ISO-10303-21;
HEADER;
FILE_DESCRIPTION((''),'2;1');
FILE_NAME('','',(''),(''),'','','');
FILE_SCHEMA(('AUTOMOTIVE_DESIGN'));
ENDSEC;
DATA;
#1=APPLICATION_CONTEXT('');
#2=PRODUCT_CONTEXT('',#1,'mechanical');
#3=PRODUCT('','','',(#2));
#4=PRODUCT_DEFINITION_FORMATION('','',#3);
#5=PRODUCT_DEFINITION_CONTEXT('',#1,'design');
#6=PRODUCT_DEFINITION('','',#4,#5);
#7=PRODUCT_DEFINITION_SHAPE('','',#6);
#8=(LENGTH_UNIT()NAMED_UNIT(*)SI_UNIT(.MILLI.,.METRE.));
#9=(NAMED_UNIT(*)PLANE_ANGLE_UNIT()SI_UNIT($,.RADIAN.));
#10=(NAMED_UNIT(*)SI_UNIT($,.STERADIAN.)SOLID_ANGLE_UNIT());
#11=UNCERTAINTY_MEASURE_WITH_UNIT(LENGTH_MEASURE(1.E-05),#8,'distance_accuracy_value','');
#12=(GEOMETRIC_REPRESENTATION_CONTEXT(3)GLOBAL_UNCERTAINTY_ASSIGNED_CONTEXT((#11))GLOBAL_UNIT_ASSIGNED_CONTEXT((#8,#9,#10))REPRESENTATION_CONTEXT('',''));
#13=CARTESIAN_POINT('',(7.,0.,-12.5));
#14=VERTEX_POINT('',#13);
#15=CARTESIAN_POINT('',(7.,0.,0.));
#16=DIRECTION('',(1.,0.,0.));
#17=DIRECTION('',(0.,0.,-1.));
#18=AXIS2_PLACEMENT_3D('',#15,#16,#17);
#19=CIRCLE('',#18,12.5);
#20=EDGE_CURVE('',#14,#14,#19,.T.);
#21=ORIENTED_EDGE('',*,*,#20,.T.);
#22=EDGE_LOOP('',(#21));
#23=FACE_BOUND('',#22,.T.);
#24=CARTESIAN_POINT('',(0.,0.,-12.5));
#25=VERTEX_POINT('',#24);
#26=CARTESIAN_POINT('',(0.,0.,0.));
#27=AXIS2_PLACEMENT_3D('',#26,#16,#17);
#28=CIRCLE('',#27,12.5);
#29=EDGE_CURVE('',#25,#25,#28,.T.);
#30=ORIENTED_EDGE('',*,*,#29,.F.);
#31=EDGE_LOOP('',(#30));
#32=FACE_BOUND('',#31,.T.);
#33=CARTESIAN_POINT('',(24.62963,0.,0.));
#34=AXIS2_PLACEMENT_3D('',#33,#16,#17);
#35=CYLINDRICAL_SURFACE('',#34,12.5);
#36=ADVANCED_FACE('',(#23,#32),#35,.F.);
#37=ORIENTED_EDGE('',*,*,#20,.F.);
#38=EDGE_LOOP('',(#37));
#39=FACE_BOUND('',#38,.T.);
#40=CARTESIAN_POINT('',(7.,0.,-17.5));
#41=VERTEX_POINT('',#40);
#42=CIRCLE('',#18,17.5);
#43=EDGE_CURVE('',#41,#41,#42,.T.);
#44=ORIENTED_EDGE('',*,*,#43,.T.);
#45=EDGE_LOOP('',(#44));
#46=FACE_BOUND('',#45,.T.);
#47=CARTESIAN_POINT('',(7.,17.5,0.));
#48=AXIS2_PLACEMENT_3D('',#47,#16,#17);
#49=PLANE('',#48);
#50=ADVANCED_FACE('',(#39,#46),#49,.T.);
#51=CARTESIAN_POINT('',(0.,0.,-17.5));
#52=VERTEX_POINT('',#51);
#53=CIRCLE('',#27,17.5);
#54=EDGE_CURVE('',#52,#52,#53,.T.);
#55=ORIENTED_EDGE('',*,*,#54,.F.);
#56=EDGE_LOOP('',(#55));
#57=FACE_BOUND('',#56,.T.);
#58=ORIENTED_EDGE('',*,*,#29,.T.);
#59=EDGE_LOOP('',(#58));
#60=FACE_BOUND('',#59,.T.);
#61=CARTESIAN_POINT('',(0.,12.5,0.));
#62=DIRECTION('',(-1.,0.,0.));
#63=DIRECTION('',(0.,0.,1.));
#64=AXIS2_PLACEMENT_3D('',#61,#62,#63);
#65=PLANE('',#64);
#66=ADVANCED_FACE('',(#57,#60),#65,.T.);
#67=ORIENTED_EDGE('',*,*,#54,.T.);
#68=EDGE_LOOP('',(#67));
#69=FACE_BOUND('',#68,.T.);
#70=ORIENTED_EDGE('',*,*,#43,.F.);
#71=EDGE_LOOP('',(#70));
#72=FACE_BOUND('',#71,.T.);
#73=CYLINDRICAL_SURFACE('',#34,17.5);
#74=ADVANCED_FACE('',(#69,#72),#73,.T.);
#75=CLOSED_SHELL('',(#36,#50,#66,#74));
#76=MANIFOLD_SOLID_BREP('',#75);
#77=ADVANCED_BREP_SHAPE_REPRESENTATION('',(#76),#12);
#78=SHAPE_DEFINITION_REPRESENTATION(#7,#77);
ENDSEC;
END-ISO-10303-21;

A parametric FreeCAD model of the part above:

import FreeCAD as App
import Part
import Sketcher
from FreeCAD import Vector


def add_polygon(sketch, points):
    """Adds a closed chain of lines whose ends are joined by coincident constraints."""
    first, n = sketch.GeometryCount, len(points)
    for a, b in zip(points, points[1:] + points[:1]):
        sketch.addGeometry(Part.LineSegment(App.Vector(*a, 0), App.Vector(*b, 0)), False)
    for i in range(n):
        sketch.addConstraint(Sketcher.Constraint("Coincident", first + i, 2, first + (i + 1) % n, 1))

doc = App.newDocument("Part")
body = doc.addObject("PartDesign::Body", "Body")

# Sketch on XY plane
sketch1 = doc.addObject("Sketcher::SketchObject", "Sketch")
body.addObject(sketch1)
sketch1.AttachmentSupport = (doc.XY_Plane, [""])
sketch1.MapMode = "FlatFace"
add_polygon(sketch1, [(0, 17.5), (0, 12.5), (7, 12.5), (7, 17.5)])  # lines 0-3
sketch1.addConstraint(Sketcher.Constraint("Vertical", 0))
sketch1.addConstraint(Sketcher.Constraint("Horizontal", 1))
sketch1.addConstraint(Sketcher.Constraint("Vertical", 2))
sketch1.addConstraint(Sketcher.Constraint("Horizontal", 3))
sketch1.addConstraint(Sketcher.Constraint("PointOnObject", 0, 2, -2))
sketch1.addConstraint(Sketcher.Constraint("DistanceX", 1, 1, 1, 2, 7.0))
sketch1.addConstraint(Sketcher.Constraint("DistanceY", 0, 2, 0, 1, 5.0))
sketch1.addConstraint(Sketcher.Constraint("DistanceY", -1, 1, 0, 2, 12.5))
revolution = doc.addObject("PartDesign::Revolution", "Revolution")
body.addObject(revolution)
revolution.Profile = sketch1
revolution.ReferenceAxis = (sketch1, ["H_Axis"])
revolution.Angle = 360

doc.recompute()
